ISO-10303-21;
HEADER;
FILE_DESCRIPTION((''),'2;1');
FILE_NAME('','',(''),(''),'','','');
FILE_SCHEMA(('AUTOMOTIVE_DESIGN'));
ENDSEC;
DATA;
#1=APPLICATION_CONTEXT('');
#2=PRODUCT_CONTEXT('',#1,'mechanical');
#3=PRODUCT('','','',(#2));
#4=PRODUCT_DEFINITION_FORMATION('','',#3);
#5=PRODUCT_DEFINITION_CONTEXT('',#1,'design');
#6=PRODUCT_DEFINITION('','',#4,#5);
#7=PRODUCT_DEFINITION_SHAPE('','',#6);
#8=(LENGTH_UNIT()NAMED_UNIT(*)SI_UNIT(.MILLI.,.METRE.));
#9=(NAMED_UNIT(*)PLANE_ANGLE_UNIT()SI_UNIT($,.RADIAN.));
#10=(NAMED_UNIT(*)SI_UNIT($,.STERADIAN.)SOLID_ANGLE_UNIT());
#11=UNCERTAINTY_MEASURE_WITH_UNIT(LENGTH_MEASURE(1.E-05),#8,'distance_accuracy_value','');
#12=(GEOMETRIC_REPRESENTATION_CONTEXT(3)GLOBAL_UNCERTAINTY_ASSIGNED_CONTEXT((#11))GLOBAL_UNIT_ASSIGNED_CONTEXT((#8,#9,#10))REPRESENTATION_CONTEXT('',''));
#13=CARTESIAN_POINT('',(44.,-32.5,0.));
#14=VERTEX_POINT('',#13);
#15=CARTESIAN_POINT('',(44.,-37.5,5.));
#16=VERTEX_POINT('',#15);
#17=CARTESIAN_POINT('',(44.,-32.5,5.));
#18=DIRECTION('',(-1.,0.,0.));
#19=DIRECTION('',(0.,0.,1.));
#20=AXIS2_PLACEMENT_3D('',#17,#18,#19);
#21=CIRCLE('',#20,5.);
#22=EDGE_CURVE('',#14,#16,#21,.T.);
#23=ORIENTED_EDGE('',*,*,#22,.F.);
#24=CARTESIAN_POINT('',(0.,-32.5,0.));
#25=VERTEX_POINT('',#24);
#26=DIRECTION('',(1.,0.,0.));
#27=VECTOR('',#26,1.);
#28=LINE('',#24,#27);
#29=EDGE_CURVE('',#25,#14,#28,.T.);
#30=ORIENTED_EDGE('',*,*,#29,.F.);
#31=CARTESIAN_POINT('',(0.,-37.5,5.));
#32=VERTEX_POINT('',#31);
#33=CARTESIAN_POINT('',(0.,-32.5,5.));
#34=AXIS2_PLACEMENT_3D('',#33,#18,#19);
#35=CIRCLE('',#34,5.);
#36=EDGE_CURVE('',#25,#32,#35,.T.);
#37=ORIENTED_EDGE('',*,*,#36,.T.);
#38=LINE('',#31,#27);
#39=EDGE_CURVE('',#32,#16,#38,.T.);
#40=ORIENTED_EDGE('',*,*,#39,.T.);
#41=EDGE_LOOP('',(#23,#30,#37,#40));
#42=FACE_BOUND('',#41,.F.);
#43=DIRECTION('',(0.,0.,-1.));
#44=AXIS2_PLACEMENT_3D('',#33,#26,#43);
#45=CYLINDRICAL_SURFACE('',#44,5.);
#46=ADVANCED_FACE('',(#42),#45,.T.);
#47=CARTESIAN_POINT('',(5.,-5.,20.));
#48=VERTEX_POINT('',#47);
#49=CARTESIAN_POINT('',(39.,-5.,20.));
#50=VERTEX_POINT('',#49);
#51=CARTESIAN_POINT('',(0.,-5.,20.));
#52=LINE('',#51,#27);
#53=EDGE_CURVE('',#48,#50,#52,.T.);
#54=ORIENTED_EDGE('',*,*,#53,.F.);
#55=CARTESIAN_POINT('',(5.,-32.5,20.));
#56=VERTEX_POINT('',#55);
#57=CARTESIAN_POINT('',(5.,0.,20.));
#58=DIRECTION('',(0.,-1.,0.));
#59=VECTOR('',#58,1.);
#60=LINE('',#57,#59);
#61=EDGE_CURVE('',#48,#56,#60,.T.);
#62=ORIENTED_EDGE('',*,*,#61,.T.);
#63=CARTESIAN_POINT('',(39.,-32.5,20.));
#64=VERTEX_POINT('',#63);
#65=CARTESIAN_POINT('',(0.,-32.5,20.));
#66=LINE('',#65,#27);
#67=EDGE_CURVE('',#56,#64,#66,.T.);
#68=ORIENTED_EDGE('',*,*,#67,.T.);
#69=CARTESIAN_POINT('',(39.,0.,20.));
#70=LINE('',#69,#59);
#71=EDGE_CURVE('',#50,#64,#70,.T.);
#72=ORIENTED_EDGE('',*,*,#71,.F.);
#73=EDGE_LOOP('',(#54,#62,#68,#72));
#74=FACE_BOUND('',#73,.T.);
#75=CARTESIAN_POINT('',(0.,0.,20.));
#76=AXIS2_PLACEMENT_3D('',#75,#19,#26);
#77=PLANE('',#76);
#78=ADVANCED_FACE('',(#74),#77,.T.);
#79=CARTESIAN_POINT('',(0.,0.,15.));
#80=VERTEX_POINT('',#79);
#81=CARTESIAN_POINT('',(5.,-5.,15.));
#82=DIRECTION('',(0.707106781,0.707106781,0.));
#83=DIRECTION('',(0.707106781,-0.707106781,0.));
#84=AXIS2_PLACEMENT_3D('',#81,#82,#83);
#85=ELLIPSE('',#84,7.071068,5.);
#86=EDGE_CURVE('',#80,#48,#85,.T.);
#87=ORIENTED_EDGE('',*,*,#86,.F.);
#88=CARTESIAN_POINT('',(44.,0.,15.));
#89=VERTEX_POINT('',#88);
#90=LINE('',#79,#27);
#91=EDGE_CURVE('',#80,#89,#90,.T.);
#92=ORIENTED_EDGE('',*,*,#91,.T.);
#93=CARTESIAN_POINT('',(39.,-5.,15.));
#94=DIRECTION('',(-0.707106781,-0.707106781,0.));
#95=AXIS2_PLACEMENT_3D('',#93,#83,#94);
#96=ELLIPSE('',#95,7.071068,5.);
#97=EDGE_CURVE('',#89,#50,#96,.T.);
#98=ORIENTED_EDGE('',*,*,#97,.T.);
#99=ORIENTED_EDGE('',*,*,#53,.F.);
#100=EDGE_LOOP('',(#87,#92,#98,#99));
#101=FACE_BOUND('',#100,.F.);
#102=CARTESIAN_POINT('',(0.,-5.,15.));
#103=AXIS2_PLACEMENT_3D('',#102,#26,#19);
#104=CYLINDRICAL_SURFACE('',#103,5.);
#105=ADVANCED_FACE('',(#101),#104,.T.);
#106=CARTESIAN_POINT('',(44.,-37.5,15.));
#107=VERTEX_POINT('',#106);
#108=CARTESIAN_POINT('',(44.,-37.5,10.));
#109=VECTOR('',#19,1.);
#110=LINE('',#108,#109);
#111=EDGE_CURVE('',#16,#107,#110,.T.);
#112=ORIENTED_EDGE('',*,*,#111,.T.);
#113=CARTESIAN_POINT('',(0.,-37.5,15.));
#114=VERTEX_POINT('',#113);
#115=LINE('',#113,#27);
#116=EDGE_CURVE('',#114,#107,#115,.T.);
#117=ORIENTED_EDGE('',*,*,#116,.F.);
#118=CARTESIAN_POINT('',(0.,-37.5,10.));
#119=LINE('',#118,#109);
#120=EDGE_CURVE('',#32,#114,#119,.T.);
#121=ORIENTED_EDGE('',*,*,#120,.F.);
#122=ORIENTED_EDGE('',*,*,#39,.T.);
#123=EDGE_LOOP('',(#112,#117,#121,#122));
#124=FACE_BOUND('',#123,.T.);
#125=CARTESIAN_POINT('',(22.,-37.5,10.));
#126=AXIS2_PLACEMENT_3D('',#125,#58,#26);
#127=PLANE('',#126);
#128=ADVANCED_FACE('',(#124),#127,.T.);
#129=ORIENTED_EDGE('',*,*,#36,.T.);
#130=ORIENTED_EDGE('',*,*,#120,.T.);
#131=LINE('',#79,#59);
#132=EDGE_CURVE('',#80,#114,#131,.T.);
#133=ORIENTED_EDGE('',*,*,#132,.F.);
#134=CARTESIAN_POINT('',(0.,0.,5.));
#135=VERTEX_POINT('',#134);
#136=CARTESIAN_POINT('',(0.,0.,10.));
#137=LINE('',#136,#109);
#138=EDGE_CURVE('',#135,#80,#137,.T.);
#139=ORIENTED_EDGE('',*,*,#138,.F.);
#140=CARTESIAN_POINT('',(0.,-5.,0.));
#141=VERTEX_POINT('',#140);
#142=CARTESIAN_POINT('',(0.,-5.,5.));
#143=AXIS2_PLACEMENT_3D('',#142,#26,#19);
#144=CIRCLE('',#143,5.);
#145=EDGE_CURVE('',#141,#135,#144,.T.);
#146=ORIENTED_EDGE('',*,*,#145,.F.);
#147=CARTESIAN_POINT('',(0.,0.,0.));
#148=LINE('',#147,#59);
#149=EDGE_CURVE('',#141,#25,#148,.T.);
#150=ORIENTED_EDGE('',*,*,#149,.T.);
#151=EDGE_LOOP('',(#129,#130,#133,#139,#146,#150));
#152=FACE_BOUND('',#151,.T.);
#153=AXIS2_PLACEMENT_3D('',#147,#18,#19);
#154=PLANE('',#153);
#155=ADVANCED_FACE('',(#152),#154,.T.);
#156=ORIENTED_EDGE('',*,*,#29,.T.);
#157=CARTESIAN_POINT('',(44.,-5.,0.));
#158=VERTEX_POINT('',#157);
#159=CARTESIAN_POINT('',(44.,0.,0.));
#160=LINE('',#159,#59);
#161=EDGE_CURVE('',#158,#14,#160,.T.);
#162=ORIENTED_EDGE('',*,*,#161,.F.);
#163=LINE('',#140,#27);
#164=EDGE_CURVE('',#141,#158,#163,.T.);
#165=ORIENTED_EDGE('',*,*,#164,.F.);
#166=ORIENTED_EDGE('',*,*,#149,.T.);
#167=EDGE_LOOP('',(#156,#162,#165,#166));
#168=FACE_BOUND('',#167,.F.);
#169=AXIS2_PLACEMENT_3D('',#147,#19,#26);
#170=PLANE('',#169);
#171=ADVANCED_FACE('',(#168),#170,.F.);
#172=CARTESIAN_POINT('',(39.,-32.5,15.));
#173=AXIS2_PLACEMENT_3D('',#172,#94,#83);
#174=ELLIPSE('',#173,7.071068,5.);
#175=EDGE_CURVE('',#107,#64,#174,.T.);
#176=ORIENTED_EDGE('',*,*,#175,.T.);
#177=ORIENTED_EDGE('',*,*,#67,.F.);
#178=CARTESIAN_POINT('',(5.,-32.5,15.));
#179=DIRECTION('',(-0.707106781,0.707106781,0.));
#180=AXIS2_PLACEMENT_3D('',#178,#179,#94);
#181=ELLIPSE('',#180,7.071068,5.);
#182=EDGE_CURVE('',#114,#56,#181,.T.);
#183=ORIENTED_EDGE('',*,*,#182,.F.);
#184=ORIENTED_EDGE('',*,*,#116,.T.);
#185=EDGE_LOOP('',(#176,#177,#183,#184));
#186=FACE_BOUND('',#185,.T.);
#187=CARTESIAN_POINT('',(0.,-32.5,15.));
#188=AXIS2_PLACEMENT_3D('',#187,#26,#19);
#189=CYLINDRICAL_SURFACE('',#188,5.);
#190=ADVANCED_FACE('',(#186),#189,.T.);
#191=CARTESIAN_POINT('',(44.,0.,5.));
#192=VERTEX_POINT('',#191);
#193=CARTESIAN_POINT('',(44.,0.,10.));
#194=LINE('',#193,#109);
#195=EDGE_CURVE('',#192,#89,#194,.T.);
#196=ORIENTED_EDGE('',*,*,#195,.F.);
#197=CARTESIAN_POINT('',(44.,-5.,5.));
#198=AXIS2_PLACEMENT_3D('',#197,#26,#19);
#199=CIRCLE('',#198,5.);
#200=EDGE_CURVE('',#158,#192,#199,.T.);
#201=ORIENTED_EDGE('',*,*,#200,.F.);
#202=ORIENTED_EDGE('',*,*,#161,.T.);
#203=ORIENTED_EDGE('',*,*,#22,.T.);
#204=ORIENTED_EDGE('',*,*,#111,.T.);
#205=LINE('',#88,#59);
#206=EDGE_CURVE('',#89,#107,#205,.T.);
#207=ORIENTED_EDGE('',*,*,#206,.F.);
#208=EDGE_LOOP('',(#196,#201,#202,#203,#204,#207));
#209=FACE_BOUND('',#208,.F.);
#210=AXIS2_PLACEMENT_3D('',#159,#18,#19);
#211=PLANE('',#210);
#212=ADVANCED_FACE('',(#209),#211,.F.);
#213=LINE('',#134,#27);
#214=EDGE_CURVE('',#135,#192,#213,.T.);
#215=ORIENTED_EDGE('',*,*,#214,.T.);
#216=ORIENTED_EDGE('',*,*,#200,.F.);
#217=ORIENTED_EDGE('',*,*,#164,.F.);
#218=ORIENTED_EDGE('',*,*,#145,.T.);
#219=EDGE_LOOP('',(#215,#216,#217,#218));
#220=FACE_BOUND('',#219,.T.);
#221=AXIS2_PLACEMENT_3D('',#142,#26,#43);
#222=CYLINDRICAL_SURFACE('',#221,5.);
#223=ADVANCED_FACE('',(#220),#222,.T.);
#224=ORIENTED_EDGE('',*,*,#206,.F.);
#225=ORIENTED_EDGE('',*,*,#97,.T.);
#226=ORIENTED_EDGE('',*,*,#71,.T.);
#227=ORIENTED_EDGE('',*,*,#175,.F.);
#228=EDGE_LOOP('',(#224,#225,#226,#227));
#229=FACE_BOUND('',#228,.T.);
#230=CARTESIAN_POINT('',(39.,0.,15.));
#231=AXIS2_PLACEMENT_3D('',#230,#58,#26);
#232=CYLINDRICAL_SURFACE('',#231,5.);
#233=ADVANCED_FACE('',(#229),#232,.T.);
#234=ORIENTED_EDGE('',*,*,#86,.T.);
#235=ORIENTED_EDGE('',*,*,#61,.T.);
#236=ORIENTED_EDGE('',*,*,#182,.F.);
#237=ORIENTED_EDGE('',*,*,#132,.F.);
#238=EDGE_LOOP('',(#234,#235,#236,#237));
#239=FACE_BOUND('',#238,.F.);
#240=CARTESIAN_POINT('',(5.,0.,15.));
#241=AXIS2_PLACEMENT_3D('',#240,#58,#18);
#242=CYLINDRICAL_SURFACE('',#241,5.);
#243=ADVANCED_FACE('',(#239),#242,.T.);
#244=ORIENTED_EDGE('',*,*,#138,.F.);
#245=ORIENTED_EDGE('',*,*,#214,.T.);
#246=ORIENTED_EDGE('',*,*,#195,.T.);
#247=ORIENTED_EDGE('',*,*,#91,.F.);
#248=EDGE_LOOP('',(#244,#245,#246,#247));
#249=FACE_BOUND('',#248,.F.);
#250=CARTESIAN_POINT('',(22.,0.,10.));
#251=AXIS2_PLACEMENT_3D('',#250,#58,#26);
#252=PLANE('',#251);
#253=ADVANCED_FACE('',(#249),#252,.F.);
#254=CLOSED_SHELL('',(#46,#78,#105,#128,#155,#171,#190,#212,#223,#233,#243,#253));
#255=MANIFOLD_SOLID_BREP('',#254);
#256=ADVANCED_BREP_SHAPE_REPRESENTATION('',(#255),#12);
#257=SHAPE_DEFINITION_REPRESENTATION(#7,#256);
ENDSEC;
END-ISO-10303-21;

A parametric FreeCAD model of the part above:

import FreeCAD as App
import Part
import Sketcher
Q = App.Units.Quantity


def edges_at(feature, points):
    """Names of the edges that pass closest to the given points."""
    edges = feature.Shape.Edges
    near = lambda p: min(range(len(edges)), key=lambda i: edges[i].distToShape(Part.Vertex(*p))[0])
    return sorted({f"Edge{near(p) + 1}" for p in points})

doc = App.newDocument("Part")
params = doc.addObject("Spreadsheet::Sheet", "Params")
for row, (alias, value) in enumerate([
    ("sketch1_width", "44 mm"),
    ("sketch1_height", "20 mm"),
    ("pad1_length", "37.5 mm"),
    ("fillet_radius", "5 mm"),
], start=1):
    params.set(f"A{row}", alias)
    params.set(f"B{row}", "=" + value)
    params.setAlias(f"B{row}", alias)

body = doc.addObject("PartDesign::Body", "Body")

sketch1 = body.newObject("Sketcher::SketchObject", "Sketch")
sketch1.AttachmentSupport = (doc.getObject("XZ_Plane"), [""])
sketch1.MapMode = "FlatFace"
sketch1.addGeometry([
    Part.LineSegment(App.Vector(0, 20, 0), App.Vector(0, 0, 0)),
    Part.LineSegment(App.Vector(0, 0, 0), App.Vector(44, 0, 0)),
    Part.LineSegment(App.Vector(44, 0, 0), App.Vector(44, 20, 0)),
    Part.LineSegment(App.Vector(44, 20, 0), App.Vector(0, 20, 0)),
], False)
sketch1.addConstraint([
    Sketcher.Constraint("Coincident", 0, 2, 1, 1),
    Sketcher.Constraint("Coincident", 1, 2, 2, 1),
    Sketcher.Constraint("Coincident", 2, 2, 3, 1),
    Sketcher.Constraint("Coincident", 3, 2, 0, 1),
    Sketcher.Constraint("Vertical", 0),
    Sketcher.Constraint("Horizontal", 1),
    Sketcher.Constraint("Vertical", 2),
    Sketcher.Constraint("Horizontal", 3),
    Sketcher.Constraint("Coincident", 0, 2, -1, 1),
    Sketcher.Constraint("DistanceX", 1, 1, 1, 2, Q("44 mm")),
    Sketcher.Constraint("DistanceY", 0, 2, 0, 1, Q("20 mm")),
])
sketch1.setExpression("Constraints[9]", "Params.sketch1_width")
sketch1.setExpression("Constraints[10]", "Params.sketch1_height")
pad1 = body.newObject("PartDesign::Pad", "Pad")
pad1.Profile = sketch1
pad1.setExpression("Length", "Params.pad1_length")
doc.recompute()

fillet = body.newObject("PartDesign::Fillet", "Fillet")
fillet.Base = (pad1, edges_at(pad1, [
    (44, -18.75, 20),
    (0, -18.75, 20),
    (22, 0, 20),
    (22, -37.5, 20),
    (22, -37.5, 0),
    (22, 0, 0),
]))
fillet.setExpression("Radius", "Params.fillet_radius")

doc.recompute()
